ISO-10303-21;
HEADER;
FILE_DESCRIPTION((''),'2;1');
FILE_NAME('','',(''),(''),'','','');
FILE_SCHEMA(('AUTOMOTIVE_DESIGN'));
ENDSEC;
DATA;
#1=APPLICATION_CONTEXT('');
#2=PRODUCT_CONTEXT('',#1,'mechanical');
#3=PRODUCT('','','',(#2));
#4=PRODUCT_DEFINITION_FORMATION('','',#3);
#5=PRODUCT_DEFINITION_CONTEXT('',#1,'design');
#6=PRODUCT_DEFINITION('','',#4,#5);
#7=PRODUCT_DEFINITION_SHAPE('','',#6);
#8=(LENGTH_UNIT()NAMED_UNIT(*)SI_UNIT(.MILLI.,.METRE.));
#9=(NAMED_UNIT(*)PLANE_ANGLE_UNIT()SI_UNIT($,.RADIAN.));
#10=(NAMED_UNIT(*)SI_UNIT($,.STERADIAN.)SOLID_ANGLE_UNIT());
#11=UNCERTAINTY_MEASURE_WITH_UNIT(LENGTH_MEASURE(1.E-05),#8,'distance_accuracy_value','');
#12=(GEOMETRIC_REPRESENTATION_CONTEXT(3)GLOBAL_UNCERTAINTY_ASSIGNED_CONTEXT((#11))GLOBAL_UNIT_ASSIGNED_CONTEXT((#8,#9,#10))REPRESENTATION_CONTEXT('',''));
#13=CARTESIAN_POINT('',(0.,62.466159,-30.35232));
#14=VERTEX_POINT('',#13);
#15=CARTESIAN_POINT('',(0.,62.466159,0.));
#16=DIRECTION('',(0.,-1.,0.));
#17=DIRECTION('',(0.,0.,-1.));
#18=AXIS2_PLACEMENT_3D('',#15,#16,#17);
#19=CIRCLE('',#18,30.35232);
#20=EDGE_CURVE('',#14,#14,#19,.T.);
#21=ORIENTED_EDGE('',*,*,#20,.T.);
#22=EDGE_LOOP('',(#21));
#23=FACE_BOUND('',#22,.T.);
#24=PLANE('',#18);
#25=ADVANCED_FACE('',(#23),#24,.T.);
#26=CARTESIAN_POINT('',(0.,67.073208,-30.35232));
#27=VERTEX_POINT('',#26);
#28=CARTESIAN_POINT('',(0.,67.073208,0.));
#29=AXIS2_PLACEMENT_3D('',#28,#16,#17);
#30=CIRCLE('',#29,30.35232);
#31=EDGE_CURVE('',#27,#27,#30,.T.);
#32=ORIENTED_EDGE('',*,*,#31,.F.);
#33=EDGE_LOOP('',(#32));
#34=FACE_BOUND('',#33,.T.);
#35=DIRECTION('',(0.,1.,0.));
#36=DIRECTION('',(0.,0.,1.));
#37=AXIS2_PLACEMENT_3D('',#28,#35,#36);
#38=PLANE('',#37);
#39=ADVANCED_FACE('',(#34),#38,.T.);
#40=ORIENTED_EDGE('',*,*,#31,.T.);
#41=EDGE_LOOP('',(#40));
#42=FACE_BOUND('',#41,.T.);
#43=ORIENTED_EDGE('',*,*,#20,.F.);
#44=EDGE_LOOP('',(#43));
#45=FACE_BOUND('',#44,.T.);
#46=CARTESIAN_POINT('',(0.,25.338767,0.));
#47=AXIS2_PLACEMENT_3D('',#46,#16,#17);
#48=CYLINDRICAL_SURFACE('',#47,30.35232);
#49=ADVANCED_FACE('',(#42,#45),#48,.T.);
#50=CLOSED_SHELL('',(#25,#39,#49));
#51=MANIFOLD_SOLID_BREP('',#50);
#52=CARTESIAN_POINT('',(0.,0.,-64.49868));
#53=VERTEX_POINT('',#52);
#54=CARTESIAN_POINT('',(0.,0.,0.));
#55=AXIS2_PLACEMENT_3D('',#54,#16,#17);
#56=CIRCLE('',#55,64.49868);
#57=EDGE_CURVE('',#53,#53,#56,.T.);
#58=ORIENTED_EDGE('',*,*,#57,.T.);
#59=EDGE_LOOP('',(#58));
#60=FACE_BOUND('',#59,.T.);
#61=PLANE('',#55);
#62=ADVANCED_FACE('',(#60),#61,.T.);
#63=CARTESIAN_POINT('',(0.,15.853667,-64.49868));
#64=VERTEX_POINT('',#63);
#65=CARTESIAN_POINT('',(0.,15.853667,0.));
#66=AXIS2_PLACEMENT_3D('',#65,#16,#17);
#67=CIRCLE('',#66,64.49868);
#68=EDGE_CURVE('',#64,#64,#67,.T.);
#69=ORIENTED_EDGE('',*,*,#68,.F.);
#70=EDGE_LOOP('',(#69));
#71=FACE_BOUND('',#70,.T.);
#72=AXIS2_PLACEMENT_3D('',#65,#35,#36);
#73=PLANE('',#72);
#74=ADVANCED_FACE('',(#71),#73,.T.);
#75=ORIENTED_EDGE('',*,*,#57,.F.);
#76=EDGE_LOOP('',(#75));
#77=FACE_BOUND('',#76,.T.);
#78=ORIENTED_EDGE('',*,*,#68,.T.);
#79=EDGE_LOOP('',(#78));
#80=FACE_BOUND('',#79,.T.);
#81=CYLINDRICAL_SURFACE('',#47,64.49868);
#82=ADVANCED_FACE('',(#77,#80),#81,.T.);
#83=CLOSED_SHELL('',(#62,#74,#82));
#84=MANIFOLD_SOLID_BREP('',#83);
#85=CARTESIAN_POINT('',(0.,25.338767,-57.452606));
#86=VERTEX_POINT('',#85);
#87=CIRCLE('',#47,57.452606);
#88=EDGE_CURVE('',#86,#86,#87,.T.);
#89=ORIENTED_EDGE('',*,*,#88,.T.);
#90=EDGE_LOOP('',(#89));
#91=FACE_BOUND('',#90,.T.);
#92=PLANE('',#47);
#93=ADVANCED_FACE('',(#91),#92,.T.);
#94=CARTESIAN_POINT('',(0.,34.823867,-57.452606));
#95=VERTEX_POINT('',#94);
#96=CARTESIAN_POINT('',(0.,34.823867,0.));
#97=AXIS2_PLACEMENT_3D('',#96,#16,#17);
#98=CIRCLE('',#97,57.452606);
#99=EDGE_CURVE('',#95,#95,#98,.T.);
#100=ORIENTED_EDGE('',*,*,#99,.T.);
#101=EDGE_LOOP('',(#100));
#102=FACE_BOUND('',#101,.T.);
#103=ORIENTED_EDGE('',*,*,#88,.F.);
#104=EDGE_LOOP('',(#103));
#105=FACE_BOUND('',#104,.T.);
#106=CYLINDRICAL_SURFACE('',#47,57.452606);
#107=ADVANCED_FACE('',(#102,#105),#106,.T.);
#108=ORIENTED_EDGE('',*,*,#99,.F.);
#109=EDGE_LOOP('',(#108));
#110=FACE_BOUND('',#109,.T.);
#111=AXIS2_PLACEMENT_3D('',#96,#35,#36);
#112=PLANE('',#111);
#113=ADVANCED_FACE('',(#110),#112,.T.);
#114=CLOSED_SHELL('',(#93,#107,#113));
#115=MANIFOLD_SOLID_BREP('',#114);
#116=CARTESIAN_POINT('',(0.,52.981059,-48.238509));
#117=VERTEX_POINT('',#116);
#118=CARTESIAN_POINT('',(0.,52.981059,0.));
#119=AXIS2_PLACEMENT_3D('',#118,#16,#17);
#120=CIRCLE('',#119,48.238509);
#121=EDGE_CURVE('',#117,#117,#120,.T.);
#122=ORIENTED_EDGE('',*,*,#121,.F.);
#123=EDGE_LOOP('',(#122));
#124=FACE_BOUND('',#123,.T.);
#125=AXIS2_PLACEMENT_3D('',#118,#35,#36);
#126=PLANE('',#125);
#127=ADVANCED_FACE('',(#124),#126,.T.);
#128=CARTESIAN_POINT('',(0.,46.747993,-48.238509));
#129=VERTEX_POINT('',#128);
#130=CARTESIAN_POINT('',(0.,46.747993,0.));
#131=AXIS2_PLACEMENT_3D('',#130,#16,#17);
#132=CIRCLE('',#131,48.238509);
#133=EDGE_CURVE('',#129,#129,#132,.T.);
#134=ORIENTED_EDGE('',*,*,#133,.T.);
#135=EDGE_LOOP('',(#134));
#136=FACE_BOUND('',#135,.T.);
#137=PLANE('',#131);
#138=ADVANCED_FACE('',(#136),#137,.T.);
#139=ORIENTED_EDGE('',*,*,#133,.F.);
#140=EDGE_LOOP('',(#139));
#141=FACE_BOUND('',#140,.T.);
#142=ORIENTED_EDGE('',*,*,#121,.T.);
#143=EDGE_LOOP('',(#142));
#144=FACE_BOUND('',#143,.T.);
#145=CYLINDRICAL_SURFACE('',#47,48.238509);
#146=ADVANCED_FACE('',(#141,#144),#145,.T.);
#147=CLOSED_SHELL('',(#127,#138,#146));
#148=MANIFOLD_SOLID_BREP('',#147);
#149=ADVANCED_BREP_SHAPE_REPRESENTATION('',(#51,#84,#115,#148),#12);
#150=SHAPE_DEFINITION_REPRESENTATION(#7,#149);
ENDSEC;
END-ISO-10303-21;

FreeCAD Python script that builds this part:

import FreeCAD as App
import Part
import Sketcher
Q = App.Units.Quantity

doc = App.newDocument("Part")
params = doc.addObject("Spreadsheet::Sheet", "Params")
for row, (alias, value) in enumerate([
    ("revolution_angle", "360 deg"),
], start=1):
    params.set(f"A{row}", alias)
    params.set(f"B{row}", "=" + value)
    params.setAlias(f"B{row}", alias)

body = doc.addObject("PartDesign::Body", "Body")
body.AllowCompound = True

# Sketch on XY plane
sketch1 = body.newObject("Sketcher::SketchObject", "Sketch")
sketch1.AttachmentSupport = (doc.getObject("XY_Plane"), [""])
sketch1.MapMode = "FlatFace"
sketch1.addGeometry([
    Part.LineSegment(App.Vector(0, 15.9, 0), App.Vector(0, 0, 0)),  # 0
    Part.LineSegment(App.Vector(0, 0, 0), App.Vector(64.5, 0, 0)),  # 1
    Part.LineSegment(App.Vector(64.5, 0, 0), App.Vector(64.5, 15.9, 0)),  # 2
    Part.LineSegment(App.Vector(64.5, 15.9, 0), App.Vector(0, 15.9, 0)),  # 3
    Part.LineSegment(App.Vector(0, 34.8, 0), App.Vector(0, 25.3, 0)),  # 4
    Part.LineSegment(App.Vector(0, 25.3, 0), App.Vector(57.5, 25.3, 0)),  # 5
    Part.LineSegment(App.Vector(57.5, 25.3, 0), App.Vector(57.5, 34.8, 0)),  # 6
    Part.LineSegment(App.Vector(57.5, 34.8, 0), App.Vector(0, 34.8, 0)),  # 7
    Part.LineSegment(App.Vector(0, 53, 0), App.Vector(0, 46.7, 0)),  # 8
    Part.LineSegment(App.Vector(0, 46.7, 0), App.Vector(48.2, 46.7, 0)),  # 9
    Part.LineSegment(App.Vector(48.2, 46.7, 0), App.Vector(48.2, 53, 0)),  # 10
    Part.LineSegment(App.Vector(48.2, 53, 0), App.Vector(0, 53, 0)),  # 11
    Part.LineSegment(App.Vector(0, 67.1, 0), App.Vector(0, 62.5, 0)),  # 12
    Part.LineSegment(App.Vector(0, 62.5, 0), App.Vector(30.4, 62.5, 0)),  # 13
    Part.LineSegment(App.Vector(30.4, 62.5, 0), App.Vector(30.4, 67.1, 0)),  # 14
    Part.LineSegment(App.Vector(30.4, 67.1, 0), App.Vector(0, 67.1, 0)),  # 15
], False)
sketch1.addConstraint([
    Sketcher.Constraint("Coincident", 0, 2, 1, 1),
    Sketcher.Constraint("Coincident", 1, 2, 2, 1),
    Sketcher.Constraint("Coincident", 2, 2, 3, 1),
    Sketcher.Constraint("Coincident", 3, 2, 0, 1),
    Sketcher.Constraint("Coincident", 4, 2, 5, 1),
    Sketcher.Constraint("Coincident", 5, 2, 6, 1),
    Sketcher.Constraint("Coincident", 6, 2, 7, 1),
    Sketcher.Constraint("Coincident", 7, 2, 4, 1),
    Sketcher.Constraint("Coincident", 8, 2, 9, 1),
    Sketcher.Constraint("Coincident", 9, 2, 10, 1),
    Sketcher.Constraint("Coincident", 10, 2, 11, 1),
    Sketcher.Constraint("Coincident", 11, 2, 8, 1),
    Sketcher.Constraint("Coincident", 12, 2, 13, 1),
    Sketcher.Constraint("Coincident", 13, 2, 14, 1),
    Sketcher.Constraint("Coincident", 14, 2, 15, 1),
    Sketcher.Constraint("Coincident", 15, 2, 12, 1),
    Sketcher.Constraint("Vertical", 0),
    Sketcher.Constraint("Horizontal", 1),
    Sketcher.Constraint("Vertical", 2),
    Sketcher.Constraint("Horizontal", 3),
    Sketcher.Constraint("Vertical", 4),
    Sketcher.Constraint("Horizontal", 5),
    Sketcher.Constraint("Vertical", 6),
    Sketcher.Constraint("Horizontal", 7),
    Sketcher.Constraint("Vertical", 8),
    Sketcher.Constraint("Horizontal", 9),
    Sketcher.Constraint("Vertical", 10),
    Sketcher.Constraint("Horizontal", 11),
    Sketcher.Constraint("Vertical", 12),
    Sketcher.Constraint("Horizontal", 13),
    Sketcher.Constraint("Vertical", 14),
    Sketcher.Constraint("Horizontal", 15),
    Sketcher.Constraint("Coincident", 0, 2, -1, 1),
    Sketcher.Constraint("PointOnObject", 4, 2, -2),
    Sketcher.Constraint("PointOnObject", 8, 2, -2),
    Sketcher.Constraint("PointOnObject", 12, 2, -2),
    Sketcher.Constraint("DistanceY", 4, 2, 4, 1, Q("9.4851 mm")),
    Sketcher.Constraint("DistanceX", 1, 1, 1, 2, Q("64.49868 mm")),
    Sketcher.Constraint("DistanceX", 9, 1, 9, 2, Q("48.238509 mm")),
    Sketcher.Constraint("DistanceX", 13, 1, 13, 2, Q("30.35232 mm")),
    Sketcher.Constraint("DistanceY", 12, 2, 12, 1, Q("4.607049 mm")),
    Sketcher.Constraint("DistanceY", 3, 2, 4, 2, Q("9.4851 mm")),
    Sketcher.Constraint("DistanceY", 11, 2, 12, 2, Q("9.4851 mm")),
    Sketcher.Constraint("DistanceX", 5, 1, 5, 2, Q("57.452606 mm")),
    Sketcher.Constraint("DistanceY", 0, 2, 0, 1, Q("15.853667 mm")),
    Sketcher.Constraint("DistanceY", 8, 2, 8, 1, Q("6.233066 mm")),
    Sketcher.Constraint("DistanceY", -1, 1, 10, 2, Q("52.981059 mm")),
])
revolution = body.newObject("PartDesign::Revolution", "Revolution")
revolution.Profile = sketch1
revolution.ReferenceAxis = (sketch1, ["V_Axis"])
revolution.setExpression("Angle", "Params.revolution_angle")

doc.recompute()
